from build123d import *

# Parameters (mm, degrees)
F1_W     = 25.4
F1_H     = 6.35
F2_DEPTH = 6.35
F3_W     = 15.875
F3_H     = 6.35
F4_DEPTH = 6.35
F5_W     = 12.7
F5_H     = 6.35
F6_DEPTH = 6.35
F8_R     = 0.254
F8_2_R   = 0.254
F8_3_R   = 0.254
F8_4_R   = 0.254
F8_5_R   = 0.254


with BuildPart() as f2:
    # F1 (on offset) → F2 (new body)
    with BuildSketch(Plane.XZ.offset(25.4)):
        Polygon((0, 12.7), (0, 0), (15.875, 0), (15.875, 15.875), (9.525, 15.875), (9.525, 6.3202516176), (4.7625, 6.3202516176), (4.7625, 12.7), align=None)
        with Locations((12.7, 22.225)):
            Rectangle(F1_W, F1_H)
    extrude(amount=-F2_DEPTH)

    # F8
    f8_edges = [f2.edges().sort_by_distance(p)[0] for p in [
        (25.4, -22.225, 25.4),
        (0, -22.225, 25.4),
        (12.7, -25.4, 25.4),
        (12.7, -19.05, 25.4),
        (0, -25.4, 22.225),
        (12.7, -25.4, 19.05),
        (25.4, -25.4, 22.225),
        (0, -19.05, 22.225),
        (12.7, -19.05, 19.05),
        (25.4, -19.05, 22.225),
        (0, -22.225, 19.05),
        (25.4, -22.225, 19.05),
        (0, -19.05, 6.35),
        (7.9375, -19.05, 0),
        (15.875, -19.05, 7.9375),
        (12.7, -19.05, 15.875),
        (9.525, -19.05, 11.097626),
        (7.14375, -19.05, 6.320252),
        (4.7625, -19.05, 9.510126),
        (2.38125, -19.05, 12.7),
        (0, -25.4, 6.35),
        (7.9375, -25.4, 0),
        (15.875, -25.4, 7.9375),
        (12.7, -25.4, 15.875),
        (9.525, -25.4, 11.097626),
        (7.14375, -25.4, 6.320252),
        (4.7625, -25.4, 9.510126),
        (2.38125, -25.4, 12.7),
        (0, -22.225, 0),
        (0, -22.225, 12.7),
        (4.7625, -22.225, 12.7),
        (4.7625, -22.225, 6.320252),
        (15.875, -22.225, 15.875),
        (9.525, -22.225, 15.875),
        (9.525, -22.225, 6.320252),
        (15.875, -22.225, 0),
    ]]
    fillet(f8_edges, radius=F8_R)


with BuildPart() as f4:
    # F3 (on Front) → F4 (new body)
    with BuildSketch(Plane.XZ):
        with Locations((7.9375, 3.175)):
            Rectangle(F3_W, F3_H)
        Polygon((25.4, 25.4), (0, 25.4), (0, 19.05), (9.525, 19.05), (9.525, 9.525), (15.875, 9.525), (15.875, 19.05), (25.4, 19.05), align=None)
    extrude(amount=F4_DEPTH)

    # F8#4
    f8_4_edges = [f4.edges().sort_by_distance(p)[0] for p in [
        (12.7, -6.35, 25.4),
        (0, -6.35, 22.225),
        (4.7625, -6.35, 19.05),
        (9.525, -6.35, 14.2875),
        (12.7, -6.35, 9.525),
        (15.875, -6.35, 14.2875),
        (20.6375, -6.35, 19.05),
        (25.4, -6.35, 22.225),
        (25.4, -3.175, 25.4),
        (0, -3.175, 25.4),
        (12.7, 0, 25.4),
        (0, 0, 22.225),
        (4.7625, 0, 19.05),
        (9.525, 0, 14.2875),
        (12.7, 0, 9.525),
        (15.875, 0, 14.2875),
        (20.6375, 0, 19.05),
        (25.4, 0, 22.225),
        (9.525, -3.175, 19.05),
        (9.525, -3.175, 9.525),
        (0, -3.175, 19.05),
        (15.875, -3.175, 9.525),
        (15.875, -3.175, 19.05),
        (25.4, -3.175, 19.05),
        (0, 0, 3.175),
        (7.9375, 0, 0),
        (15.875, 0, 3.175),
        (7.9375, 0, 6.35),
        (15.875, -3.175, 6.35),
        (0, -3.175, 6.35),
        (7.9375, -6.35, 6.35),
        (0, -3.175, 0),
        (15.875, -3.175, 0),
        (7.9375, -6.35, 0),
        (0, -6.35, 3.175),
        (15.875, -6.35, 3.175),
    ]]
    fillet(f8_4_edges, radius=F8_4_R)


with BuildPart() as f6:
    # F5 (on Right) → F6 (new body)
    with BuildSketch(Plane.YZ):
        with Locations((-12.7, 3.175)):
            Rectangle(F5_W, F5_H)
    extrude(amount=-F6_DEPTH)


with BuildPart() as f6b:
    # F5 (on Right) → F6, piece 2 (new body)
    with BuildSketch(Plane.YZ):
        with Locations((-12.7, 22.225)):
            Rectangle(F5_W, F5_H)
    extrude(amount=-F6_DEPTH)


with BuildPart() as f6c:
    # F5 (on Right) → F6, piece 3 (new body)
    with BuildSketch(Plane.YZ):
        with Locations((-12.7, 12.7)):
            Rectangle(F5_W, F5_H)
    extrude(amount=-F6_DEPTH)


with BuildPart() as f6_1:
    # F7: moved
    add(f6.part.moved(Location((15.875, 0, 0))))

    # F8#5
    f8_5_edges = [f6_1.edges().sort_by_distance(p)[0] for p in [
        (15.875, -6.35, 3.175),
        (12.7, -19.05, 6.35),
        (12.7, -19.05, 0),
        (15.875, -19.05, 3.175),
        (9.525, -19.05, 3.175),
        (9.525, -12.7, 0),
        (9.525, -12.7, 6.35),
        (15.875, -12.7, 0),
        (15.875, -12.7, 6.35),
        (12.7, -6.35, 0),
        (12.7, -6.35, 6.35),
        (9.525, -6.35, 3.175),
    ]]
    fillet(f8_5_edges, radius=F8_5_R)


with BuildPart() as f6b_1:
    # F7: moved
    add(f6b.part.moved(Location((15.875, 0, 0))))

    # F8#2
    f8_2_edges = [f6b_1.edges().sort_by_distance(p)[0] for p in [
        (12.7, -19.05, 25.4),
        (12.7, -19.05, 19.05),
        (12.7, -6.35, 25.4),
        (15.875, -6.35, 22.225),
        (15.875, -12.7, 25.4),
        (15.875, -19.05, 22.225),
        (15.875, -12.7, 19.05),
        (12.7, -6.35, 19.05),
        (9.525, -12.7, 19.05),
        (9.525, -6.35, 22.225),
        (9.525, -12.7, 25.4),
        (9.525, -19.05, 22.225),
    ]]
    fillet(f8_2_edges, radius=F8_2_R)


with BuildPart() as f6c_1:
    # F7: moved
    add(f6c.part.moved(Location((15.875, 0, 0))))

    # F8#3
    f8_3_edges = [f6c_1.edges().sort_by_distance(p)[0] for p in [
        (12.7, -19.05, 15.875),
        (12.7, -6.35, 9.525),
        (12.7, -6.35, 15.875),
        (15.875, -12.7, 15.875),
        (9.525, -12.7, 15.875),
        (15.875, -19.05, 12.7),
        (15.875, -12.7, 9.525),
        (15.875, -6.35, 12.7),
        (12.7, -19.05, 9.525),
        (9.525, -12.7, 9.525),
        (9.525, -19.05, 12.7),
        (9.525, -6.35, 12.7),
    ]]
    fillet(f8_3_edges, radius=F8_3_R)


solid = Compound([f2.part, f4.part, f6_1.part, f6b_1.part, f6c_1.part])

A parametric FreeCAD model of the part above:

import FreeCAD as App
import Part
import Sketcher
from FreeCAD import Vector
Q = App.Units.Quantity

doc = App.newDocument("Part")
body = doc.addObject("PartDesign::Body", "Body")
body.AllowCompound = True

sketch1 = body.newObject("Sketcher::SketchObject", "Sketch")
sketch1.AttachmentSupport = (doc.getObject("XZ_Plane"), [""])
sketch1.MapMode = "FlatFace"
sketch1.AttachmentOffset = App.Placement(Vector(0, 0, 1 * 25.4), App.Rotation())
sketch1.addGeometry(Part.LineSegment(Vector(0, 12.7, 0), Vector(0, 0, 0)), False)
sketch1.addGeometry(Part.LineSegment(Vector(0, 0, 0), Vector(15.9, 0, 0)), False)
sketch1.addGeometry(Part.LineSegment(Vector(15.9, 0, 0), Vector(15.9, 15.9, 0)), False)
sketch1.addGeometry(Part.LineSegment(Vector(15.9, 15.9, 0), Vector(9.5, 15.9, 0)), False)
sketch1.addGeometry(Part.LineSegment(Vector(9.5, 15.9, 0), Vector(9.5, 6.3, 0)), False)
sketch1.addGeometry(Part.LineSegment(Vector(9.5, 6.3, 0), Vector(4.8, 6.3, 0)), False)
sketch1.addGeometry(Part.LineSegment(Vector(4.8, 6.3, 0), Vector(4.8, 12.7, 0)), False)
sketch1.addGeometry(Part.LineSegment(Vector(4.8, 12.7, 0), Vector(0, 12.7, 0)), False)
sketch1.addGeometry(Part.LineSegment(Vector(0, 25.4, 0), Vector(0, 19.1, 0)), False)
sketch1.addGeometry(Part.LineSegment(Vector(0, 19.1, 0), Vector(25.4, 19.1, 0)), False)
sketch1.addGeometry(Part.LineSegment(Vector(25.4, 19.1, 0), Vector(25.4, 25.4, 0)), False)
sketch1.addGeometry(Part.LineSegment(Vector(25.4, 25.4, 0), Vector(0, 25.4, 0)), False)
sketch1.addConstraint(Sketcher.Constraint("Coincident", 0, 2, 1, 1))
sketch1.addConstraint(Sketcher.Constraint("Coincident", 1, 2, 2, 1))
sketch1.addConstraint(Sketcher.Constraint("Coincident", 2, 2, 3, 1))
sketch1.addConstraint(Sketcher.Constraint("Coincident", 3, 2, 4, 1))
sketch1.addConstraint(Sketcher.Constraint("Coincident", 4, 2, 5, 1))
sketch1.addConstraint(Sketcher.Constraint("Coincident", 5, 2, 6, 1))
sketch1.addConstraint(Sketcher.Constraint("Coincident", 6, 2, 7, 1))
sketch1.addConstraint(Sketcher.Constraint("Coincident", 7, 2, 0, 1))
sketch1.addConstraint(Sketcher.Constraint("Coincident", 8, 2, 9, 1))
sketch1.addConstraint(Sketcher.Constraint("Coincident", 9, 2, 10, 1))
sketch1.addConstraint(Sketcher.Constraint("Coincident", 10, 2, 11, 1))
sketch1.addConstraint(Sketcher.Constraint("Coincident", 11, 2, 8, 1))
sketch1.addConstraint(Sketcher.Constraint("Vertical", 0))
sketch1.addConstraint(Sketcher.Constraint("Horizontal", 1))
sketch1.addConstraint(Sketcher.Constraint("Vertical", 2))
sketch1.addConstraint(Sketcher.Constraint("Horizontal", 3))
sketch1.addConstraint(Sketcher.Constraint("Vertical", 4))
sketch1.addConstraint(Sketcher.Constraint("Horizontal", 5))
sketch1.addConstraint(Sketcher.Constraint("Vertical", 6))
sketch1.addConstraint(Sketcher.Constraint("Horizontal", 7))
sketch1.addConstraint(Sketcher.Constraint("Vertical", 8))
sketch1.addConstraint(Sketcher.Constraint("Horizontal", 9))
sketch1.addConstraint(Sketcher.Constraint("Vertical", 10))
sketch1.addConstraint(Sketcher.Constraint("Horizontal", 11))
sketch1.addConstraint(Sketcher.Constraint("Coincident", 0, 2, -1, 1))
sketch1.addConstraint(Sketcher.Constraint("PointOnObject", 8, 2, -2))
sketch1.addConstraint(Sketcher.Constraint("Equal", 5, 7))
sketch1.addConstraint(Sketcher.Constraint("Equal", 1, 2))
sketch1.addConstraint(Sketcher.Constraint("Equal", 3, 8))
sketch1.addConstraint(Sketcher.Constraint("DistanceX", 9, 1, 9, 2, Q("1 in")))
sketch1.addConstraint(Sketcher.Constraint("DistanceY", 0, 2, 0, 1, Q("0.5 in")))
sketch1.addConstraint(Sketcher.Constraint("DistanceY", -1, 1, 10, 2, Q("1 in")))
sketch1.addConstraint(Sketcher.Constraint("DistanceX", 3, 2, 3, 1, Q("0.25 in")))
sketch1.addConstraint(Sketcher.Constraint("DistanceX", 1, 1, 1, 2, Q("0.625 in")))
sketch1.addConstraint(Sketcher.Constraint("DistanceY", 4, 2, 4, 1, Q("9.554748 mm")))
pad1 = body.newObject("PartDesign::Pad", "Pad")
pad1.Profile = sketch1
pad1.Length = Q("0.25 in")
pad1.Reversed = True
doc.recompute()

fillet = body.newObject("PartDesign::Fillet", "Fillet")
fillet.Base = (pad1, ["Edge1"])
fillet.UseAllEdges = True
fillet.Radius = Q("0.01 in")
body2 = doc.addObject("PartDesign::Body", "Body001")
body2.AllowCompound = True

sketch2 = body2.newObject("Sketcher::SketchObject", "Sketch001")
sketch2.AttachmentSupport = (doc.getObject("XZ_Plane001"), [""])
sketch2.MapMode = "FlatFace"
sketch2.addGeometry(Part.LineSegment(Vector(0, 6, 0), Vector(0, 0, 0)), False)
sketch2.addGeometry(Part.LineSegment(Vector(0, 0, 0), Vector(16, 0, 0)), False)
sketch2.addGeometry(Part.LineSegment(Vector(16, 0, 0), Vector(16, 6, 0)), False)
sketch2.addGeometry(Part.LineSegment(Vector(16, 6, 0), Vector(0, 6, 0)), False)
sketch2.addGeometry(Part.LineSegment(Vector(25, 25, 0), Vector(0, 25, 0)), False)
sketch2.addGeometry(Part.LineSegment(Vector(0, 25, 0), Vector(0, 19, 0)), False)
sketch2.addGeometry(Part.LineSegment(Vector(0, 19, 0), Vector(10, 19, 0)), False)
sketch2.addGeometry(Part.LineSegment(Vector(10, 19, 0), Vector(10, 10, 0)), False)
sketch2.addGeometry(Part.LineSegment(Vector(10, 10, 0), Vector(16, 10, 0)), False)
sketch2.addGeometry(Part.LineSegment(Vector(16, 10, 0), Vector(16, 19, 0)), False)
sketch2.addGeometry(Part.LineSegment(Vector(16, 19, 0), Vector(25, 19, 0)), False)
sketch2.addGeometry(Part.LineSegment(Vector(25, 19, 0), Vector(25, 25, 0)), False)
sketch2.addConstraint(Sketcher.Constraint("Coincident", 0, 2, 1, 1))
sketch2.addConstraint(Sketcher.Constraint("Coincident", 1, 2, 2, 1))
sketch2.addConstraint(Sketcher.Constraint("Coincident", 2, 2, 3, 1))
sketch2.addConstraint(Sketcher.Constraint("Coincident", 3, 2, 0, 1))
sketch2.addConstraint(Sketcher.Constraint("Coincident", 4, 2, 5, 1))
sketch2.addConstraint(Sketcher.Constraint("Coincident", 5, 2, 6, 1))
sketch2.addConstraint(Sketcher.Constraint("Coincident", 6, 2, 7, 1))
sketch2.addConstraint(Sketcher.Constraint("Coincident", 7, 2, 8, 1))
sketch2.addConstraint(Sketcher.Constraint("Coincident", 8, 2, 9, 1))
sketch2.addConstraint(Sketcher.Constraint("Coincident", 9, 2, 10, 1))
sketch2.addConstraint(Sketcher.Constraint("Coincident", 10, 2, 11, 1))
sketch2.addConstraint(Sketcher.Constraint("Coincident", 11, 2, 4, 1))
sketch2.addConstraint(Sketcher.Constraint("Vertical", 0))
sketch2.addConstraint(Sketcher.Constraint("Horizontal", 1))
sketch2.addConstraint(Sketcher.Constraint("Vertical", 2))
sketch2.addConstraint(Sketcher.Constraint("Horizontal", 3))
sketch2.addConstraint(Sketcher.Constraint("Horizontal", 4))
sketch2.addConstraint(Sketcher.Constraint("Vertical", 5))
sketch2.addConstraint(Sketcher.Constraint("Horizontal", 6))
sketch2.addConstraint(Sketcher.Constraint("Vertical", 7))
sketch2.addConstraint(Sketcher.Constraint("Horizontal", 8))
sketch2.addConstraint(Sketcher.Constraint("Vertical", 9))
sketch2.addConstraint(Sketcher.Constraint("Horizontal", 10))
sketch2.addConstraint(Sketcher.Constraint("Vertical", 11))
sketch2.addConstraint(Sketcher.Constraint("Coincident", 0, 2, -1, 1))
sketch2.addConstraint(Sketcher.Constraint("PointOnObject", 4, 2, -2))
sketch2.addConstraint(Sketcher.Constraint("Horizontal", 6, 2, 9, 2))
sketch2.addConstraint(Sketcher.Constraint("Vertical", 2, 2, 8, 2))
sketch2.addConstraint(Sketcher.Constraint("Equal", 6, 10))
sketch2.addConstraint(Sketcher.Constraint("Equal", 8, 0))
sketch2.addConstraint(Sketcher.Constraint("Equal", 2, 5))
sketch2.addConstraint(Sketcher.Constraint("Equal", 10, 7))
sketch2.addConstraint(Sketcher.Constraint("DistanceX", 4, 2, 4, 1, Q("1 in")))
sketch2.addConstraint(Sketcher.Constraint("DistanceY", -1, 1, 4, 2, Q("1 in")))
sketch2.addConstraint(Sketcher.Constraint("DistanceX", 8, 1, 8, 2, Q("0.25 in")))
pad2 = body2.newObject("PartDesign::Pad", "Pad001")
pad2.Profile = sketch2
pad2.Length = Q("0.25 in")
doc.recompute()

fillet2 = body2.newObject("PartDesign::Fillet", "Fillet001")
fillet2.Base = (pad2, ["Edge1"])
fillet2.UseAllEdges = True
fillet2.Radius = Q("0.01 in")
body3 = doc.addObject("PartDesign::Body", "Body002")

sketch3 = body3.newObject("Sketcher::SketchObject", "Sketch002")
sketch3.AttachmentSupport = (doc.getObject("YZ_Plane002"), [""])
sketch3.MapMode = "FlatFace"
sketch3.addGeometry(Part.LineSegment(Vector(-19, 6, 0), Vector(-19, 0, 0)), False)
sketch3.addGeometry(Part.LineSegment(Vector(-19, 0, 0), Vector(-6, 0, 0)), False)
sketch3.addGeometry(Part.LineSegment(Vector(-6, 0, 0), Vector(-6, 6, 0)), False)
sketch3.addGeometry(Part.LineSegment(Vector(-6, 6, 0), Vector(-19, 6, 0)), False)
sketch3.addConstraint(Sketcher.Constraint("Coincident", 0, 2, 1, 1))
sketch3.addConstraint(Sketcher.Constraint("Coincident", 1, 2, 2, 1))
sketch3.addConstraint(Sketcher.Constraint("Coincident", 2, 2, 3, 1))
sketch3.addConstraint(Sketcher.Constraint("Coincident", 3, 2, 0, 1))
sketch3.addConstraint(Sketcher.Constraint("Vertical", 0))
sketch3.addConstraint(Sketcher.Constraint("Horizontal", 1))
sketch3.addConstraint(Sketcher.Constraint("Vertical", 2))
sketch3.addConstraint(Sketcher.Constraint("Horizontal", 3))
sketch3.addConstraint(Sketcher.Constraint("PointOnObject", 0, 2, -1))
sketch3.addConstraint(Sketcher.Constraint("DistanceX", 1, 1, 1, 2, Q("0.5 in")))
sketch3.addConstraint(Sketcher.Constraint("DistanceY", 0, 2, 0, 1, Q("0.25 in")))
sketch3.addConstraint(Sketcher.Constraint("DistanceX", 0, 2, -1, 1, Q("0.75 in")))
pad3 = body3.newObject("PartDesign::Pad", "Pad002")
pad3.Profile = sketch3
pad3.Length = Q("0.25 in")
pad3.Reversed = True
body4 = doc.addObject("PartDesign::Body", "Body003")

sketch4 = body4.newObject("Sketcher::SketchObject", "Sketch003")
sketch4.AttachmentSupport = (doc.getObject("YZ_Plane003"), [""])
sketch4.MapMode = "FlatFace"
sketch4.addGeometry(Part.LineSegment(Vector(-19, 25, 0), Vector(-19, 19, 0)), False)
sketch4.addGeometry(Part.LineSegment(Vector(-19, 19, 0), Vector(-6, 19, 0)), False)
sketch4.addGeometry(Part.LineSegment(Vector(-6, 19, 0), Vector(-6, 25, 0)), False)
sketch4.addGeometry(Part.LineSegment(Vector(-6, 25, 0), Vector(-19, 25, 0)), False)
sketch4.addConstraint(Sketcher.Constraint("Coincident", 0, 2, 1, 1))
sketch4.addConstraint(Sketcher.Constraint("Coincident", 1, 2, 2, 1))
sketch4.addConstraint(Sketcher.Constraint("Coincident", 2, 2, 3, 1))
sketch4.addConstraint(Sketcher.Constraint("Coincident", 3, 2, 0, 1))
sketch4.addConstraint(Sketcher.Constraint("Vertical", 0))
sketch4.addConstraint(Sketcher.Constraint("Horizontal", 1))
sketch4.addConstraint(Sketcher.Constraint("Vertical", 2))
sketch4.addConstraint(Sketcher.Constraint("Horizontal", 3))
sketch4.addConstraint(Sketcher.Constraint("DistanceX", 1, 1, 1, 2, Q("0.5 in")))
sketch4.addConstraint(Sketcher.Constraint("DistanceY", -1, 1, 2, 2, Q("1 in")))
sketch4.addConstraint(Sketcher.Constraint("DistanceY", 0, 2, 0, 1, Q("0.25 in")))
sketch4.addConstraint(Sketcher.Constraint("DistanceX", 0, 2, -1, 1, Q("0.75 in")))
pad4 = body4.newObject("PartDesign::Pad", "Pad003")
pad4.Profile = sketch4
pad4.Length = Q("0.25 in")
pad4.Reversed = True
body5 = doc.addObject("PartDesign::Body", "Body004")

sketch5 = body5.newObject("Sketcher::SketchObject", "Sketch004")
sketch5.AttachmentSupport = (doc.getObject("YZ_Plane004"), [""])
sketch5.MapMode = "FlatFace"
sketch5.addGeometry(Part.LineSegment(Vector(-19, 16, 0), Vector(-19, 10, 0)), False)
sketch5.addGeometry(Part.LineSegment(Vector(-19, 10, 0), Vector(-6, 10, 0)), False)
sketch5.addGeometry(Part.LineSegment(Vector(-6, 10, 0), Vector(-6, 16, 0)), False)
sketch5.addGeometry(Part.LineSegment(Vector(-6, 16, 0), Vector(-19, 16, 0)), False)
sketch5.addConstraint(Sketcher.Constraint("Coincident", 0, 2, 1, 1))
sketch5.addConstraint(Sketcher.Constraint("Coincident", 1, 2, 2, 1))
sketch5.addConstraint(Sketcher.Constraint("Coincident", 2, 2, 3, 1))
sketch5.addConstraint(Sketcher.Constraint("Coincident", 3, 2, 0, 1))
sketch5.addConstraint(Sketcher.Constraint("Vertical", 0))
sketch5.addConstraint(Sketcher.Constraint("Horizontal", 1))
sketch5.addConstraint(Sketcher.Constraint("Vertical", 2))
sketch5.addConstraint(Sketcher.Constraint("Horizontal", 3))
sketch5.addConstraint(Sketcher.Constraint("DistanceX", 1, 1, 1, 2, Q("0.5 in")))
sketch5.addConstraint(Sketcher.Constraint("DistanceY", 0, 2, 0, 1, Q("0.25 in")))
sketch5.addConstraint(Sketcher.Constraint("DistanceX", 0, 2, -1, 1, Q("0.75 in")))
sketch5.addConstraint(Sketcher.Constraint("DistanceY", -1, 1, 0, 2, Q("0.375 in")))
pad5 = body5.newObject("PartDesign::Pad", "Pad004")
pad5.Profile = sketch5
pad5.Length = Q("0.25 in")
pad5.Reversed = True
body6 = doc.addObject("PartDesign::Body", "Body005")
doc.recompute()

body3.Placement = App.Placement(Vector(15.875, 0, 0), App.Rotation(Vector(0, 0, 1), 0))
boolean = body6.newObject("PartDesign::Boolean", "Boolean")
boolean.Type = "Fuse"
boolean.addObjects([body3])
doc.recompute()

fillet3 = body6.newObject("PartDesign::Fillet", "Fillet002")
fillet3.Base = (boolean, ["Edge1"])
fillet3.UseAllEdges = True
fillet3.Radius = Q("0.01 in")
body7 = doc.addObject("PartDesign::Body", "Body006")
doc.recompute()

body4.Placement = App.Placement(Vector(15.875, 0, 0), App.Rotation(Vector(0, 0, 1), 0))
boolean2 = body7.newObject("PartDesign::Boolean", "Boolean001")
boolean2.Type = "Fuse"
boolean2.addObjects([body4])
doc.recompute()

fillet4 = body7.newObject("PartDesign::Fillet", "Fillet003")
fillet4.Base = (boolean2, ["Edge1"])
fillet4.UseAllEdges = True
fillet4.Radius = Q("0.01 in")
body8 = doc.addObject("PartDesign::Body", "Body007")
doc.recompute()

body5.Placement = App.Placement(Vector(15.875, 0, 0), App.Rotation(Vector(0, 0, 1), 0))
boolean3 = body8.newObject("PartDesign::Boolean", "Boolean002")
boolean3.Type = "Fuse"
boolean3.addObjects([body5])
doc.recompute()

fillet5 = body8.newObject("PartDesign::Fillet", "Fillet004")
fillet5.Base = (boolean3, ["Edge1"])
fillet5.UseAllEdges = True
fillet5.Radius = Q("0.01 in")

doc.recompute()
